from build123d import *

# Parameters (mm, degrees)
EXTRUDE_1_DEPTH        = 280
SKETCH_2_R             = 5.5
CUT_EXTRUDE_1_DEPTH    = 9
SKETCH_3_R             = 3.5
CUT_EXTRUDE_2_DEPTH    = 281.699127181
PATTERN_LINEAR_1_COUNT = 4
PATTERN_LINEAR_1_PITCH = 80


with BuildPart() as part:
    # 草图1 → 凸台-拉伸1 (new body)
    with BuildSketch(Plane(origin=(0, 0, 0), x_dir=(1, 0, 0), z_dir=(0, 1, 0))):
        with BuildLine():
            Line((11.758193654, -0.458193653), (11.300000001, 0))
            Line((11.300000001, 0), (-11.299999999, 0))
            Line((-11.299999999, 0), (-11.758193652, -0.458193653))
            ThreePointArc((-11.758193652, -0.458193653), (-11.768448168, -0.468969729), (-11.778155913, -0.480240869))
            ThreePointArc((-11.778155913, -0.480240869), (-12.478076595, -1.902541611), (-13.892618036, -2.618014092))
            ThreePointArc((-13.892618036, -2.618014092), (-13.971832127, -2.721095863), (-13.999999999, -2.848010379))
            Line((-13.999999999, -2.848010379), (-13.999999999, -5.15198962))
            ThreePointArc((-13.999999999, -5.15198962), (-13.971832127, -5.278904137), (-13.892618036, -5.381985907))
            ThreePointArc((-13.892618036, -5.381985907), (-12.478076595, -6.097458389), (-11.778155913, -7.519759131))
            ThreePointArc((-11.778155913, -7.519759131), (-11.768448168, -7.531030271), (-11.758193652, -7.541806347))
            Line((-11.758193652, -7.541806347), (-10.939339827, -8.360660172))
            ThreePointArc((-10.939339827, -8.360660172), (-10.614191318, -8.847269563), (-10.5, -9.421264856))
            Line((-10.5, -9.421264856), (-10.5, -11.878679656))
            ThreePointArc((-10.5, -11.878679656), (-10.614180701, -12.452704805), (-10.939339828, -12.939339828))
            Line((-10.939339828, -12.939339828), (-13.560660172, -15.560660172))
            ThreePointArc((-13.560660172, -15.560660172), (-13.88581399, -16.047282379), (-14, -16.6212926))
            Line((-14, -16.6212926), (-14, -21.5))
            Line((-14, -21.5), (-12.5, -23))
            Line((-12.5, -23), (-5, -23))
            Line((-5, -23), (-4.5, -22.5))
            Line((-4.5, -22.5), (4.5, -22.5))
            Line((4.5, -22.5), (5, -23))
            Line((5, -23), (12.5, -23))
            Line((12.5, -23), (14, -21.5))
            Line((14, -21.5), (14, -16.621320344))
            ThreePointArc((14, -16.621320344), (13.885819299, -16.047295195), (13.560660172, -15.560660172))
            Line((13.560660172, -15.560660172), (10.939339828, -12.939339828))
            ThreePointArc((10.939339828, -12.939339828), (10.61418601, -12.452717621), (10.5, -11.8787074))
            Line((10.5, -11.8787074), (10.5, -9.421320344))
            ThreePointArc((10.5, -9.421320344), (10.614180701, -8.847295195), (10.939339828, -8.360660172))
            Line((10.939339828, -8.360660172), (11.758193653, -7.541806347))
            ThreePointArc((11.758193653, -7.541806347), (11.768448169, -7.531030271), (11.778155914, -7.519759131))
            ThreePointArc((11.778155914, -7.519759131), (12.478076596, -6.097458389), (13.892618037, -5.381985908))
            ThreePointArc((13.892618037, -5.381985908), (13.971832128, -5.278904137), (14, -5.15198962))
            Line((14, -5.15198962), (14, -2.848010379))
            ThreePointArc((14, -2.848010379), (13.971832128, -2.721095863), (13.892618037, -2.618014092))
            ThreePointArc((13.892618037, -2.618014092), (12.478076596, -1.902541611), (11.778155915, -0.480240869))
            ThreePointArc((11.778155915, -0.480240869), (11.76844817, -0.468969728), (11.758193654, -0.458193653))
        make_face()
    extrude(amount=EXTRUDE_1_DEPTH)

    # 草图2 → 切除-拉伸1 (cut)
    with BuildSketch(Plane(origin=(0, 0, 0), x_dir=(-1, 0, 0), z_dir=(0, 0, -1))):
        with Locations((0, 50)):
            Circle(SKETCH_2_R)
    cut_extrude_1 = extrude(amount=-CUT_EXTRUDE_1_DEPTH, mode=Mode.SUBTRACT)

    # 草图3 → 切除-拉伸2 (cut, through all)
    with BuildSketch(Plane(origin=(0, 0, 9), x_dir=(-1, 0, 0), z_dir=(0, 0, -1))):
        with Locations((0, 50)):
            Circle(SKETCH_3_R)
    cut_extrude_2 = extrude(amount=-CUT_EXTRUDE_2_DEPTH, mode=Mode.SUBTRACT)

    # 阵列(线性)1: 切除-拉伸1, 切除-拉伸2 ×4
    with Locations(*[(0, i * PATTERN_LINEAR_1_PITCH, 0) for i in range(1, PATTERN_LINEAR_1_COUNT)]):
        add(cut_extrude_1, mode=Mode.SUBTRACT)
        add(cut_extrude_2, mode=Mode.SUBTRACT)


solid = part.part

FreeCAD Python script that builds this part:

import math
import FreeCAD as App
import Part
import Sketcher
from FreeCAD import Vector
Q = App.Units.Quantity

doc = App.newDocument("Part")
params = doc.addObject("Spreadsheet::Sheet", "Params")
for row, (alias, value) in enumerate([
    ("sketch1_radius", "0.3 mm"),
    ("sketch1_radius2", "2.5 mm"),
    ("sketch1_radius3", "1.5 mm"),
    ("sketch1_width", "9 mm"),
    ("sketch1_width2", "22.6 mm"),
    ("pad1_length", "280 mm"),
    ("sketch2_diameter", "11 mm"),
    ("pocket1_length", "9 mm"),
    ("sketch3_diameter", "7 mm"),
    ("linearpattern_pitch", "80 mm"),
], start=1):
    params.set(f"A{row}", alias)
    params.set(f"B{row}", "=" + value)
    params.setAlias(f"B{row}", alias)

body = doc.addObject("PartDesign::Body", "Body")

# Sketch on XZ plane
sketch1 = body.newObject("Sketcher::SketchObject", "Sketch")
sketch1.AttachmentSupport = (doc.getObject("XZ_Plane"), [""])
sketch1.MapMode = "FlatFace"
sketch1.addGeometry([
    Part.LineSegment(Vector(11.758, 0.458, 0), Vector(11.3, 0, 0)),  # 0
    Part.LineSegment(Vector(11.3, 0, 0), Vector(-11.3, 0, 0)),  # 1
    Part.LineSegment(Vector(-11.3, 0, 0), Vector(-11.758, 0.458, 0)),  # 2
    Part.ArcOfCircle(Part.Circle(Vector(-11.546, 0.67, 0), Vector(0, 0, 1), 0.3), math.radians(-140.68), math.radians(-135)),  # 3
    Part.ArcOfCircle(Part.Circle(Vector(-14.256, 0.144, 0), Vector(0, 0, 1), 2.5), math.radians(8), math.radians(82)),  # 4
    Part.ArcOfCircle(Part.Circle(Vector(-13.7, 2.848, 0), Vector(0, 0, 1), 0.3), math.radians(180), math.radians(230)),  # 5
    Part.LineSegment(Vector(-14, 2.848, 0), Vector(-14, 5.152, 0)),  # 6
    Part.ArcOfCircle(Part.Circle(Vector(-13.7, 5.152, 0), Vector(0, 0, 1), 0.3), math.radians(130), math.radians(180)),  # 7
    Part.ArcOfCircle(Part.Circle(Vector(-14.256, 7.856, 0), Vector(0, 0, 1), 2.5), math.radians(-82), math.radians(-8)),  # 8
    Part.ArcOfCircle(Part.Circle(Vector(-11.546, 7.33, 0), Vector(0, 0, 1), 0.3), math.radians(135), math.radians(140.68)),  # 9
    Part.LineSegment(Vector(-11.758, 7.542, 0), Vector(-10.939, 8.361, 0)),  # 10
    Part.ArcOfCircle(Part.Circle(Vector(-12, 9.421, 0), Vector(0, 0, 1), 1.5), math.radians(-45), math.radians(0)),  # 11
    Part.LineSegment(Vector(-10.5, 9.421, 0), Vector(-10.5, 11.879, 0)),  # 12
    Part.ArcOfCircle(Part.Circle(Vector(-12, 11.879, 0), Vector(0, 0, 1), 1.5), math.radians(0), math.radians(45)),  # 13
    Part.LineSegment(Vector(-10.939, 12.939, 0), Vector(-13.561, 15.561, 0)),  # 14
    Part.ArcOfCircle(Part.Circle(Vector(-12.5, 16.621, 0), Vector(0, 0, 1), 1.5), math.radians(-180), math.radians(-135)),  # 15
    Part.LineSegment(Vector(-14, 16.621, 0), Vector(-14, 21.5, 0)),  # 16
    Part.LineSegment(Vector(-14, 21.5, 0), Vector(-12.5, 23, 0)),  # 17
    Part.LineSegment(Vector(-12.5, 23, 0), Vector(-5, 23, 0)),  # 18
    Part.LineSegment(Vector(-5, 23, 0), Vector(-4.5, 22.5, 0)),  # 19
    Part.LineSegment(Vector(-4.5, 22.5, 0), Vector(4.5, 22.5, 0)),  # 20
    Part.LineSegment(Vector(4.5, 22.5, 0), Vector(5, 23, 0)),  # 21
    Part.LineSegment(Vector(5, 23, 0), Vector(12.5, 23, 0)),  # 22
    Part.LineSegment(Vector(12.5, 23, 0), Vector(14, 21.5, 0)),  # 23
    Part.LineSegment(Vector(14, 21.5, 0), Vector(14, 16.621, 0)),  # 24
    Part.ArcOfCircle(Part.Circle(Vector(12.5, 16.621, 0), Vector(0, 0, 1), 1.5), math.radians(-45), math.radians(0)),  # 25
    Part.LineSegment(Vector(13.561, 15.561, 0), Vector(10.939, 12.939, 0)),  # 26
    Part.ArcOfCircle(Part.Circle(Vector(12, 11.879, 0), Vector(0, 0, 1), 1.5), math.radians(135), math.radians(180)),  # 27
    Part.LineSegment(Vector(10.5, 11.879, 0), Vector(10.5, 9.421, 0)),  # 28
    Part.ArcOfCircle(Part.Circle(Vector(12, 9.421, 0), Vector(0, 0, 1), 1.5), math.radians(180), math.radians(225)),  # 29
    Part.LineSegment(Vector(10.939, 8.361, 0), Vector(11.758, 7.542, 0)),  # 30
    Part.ArcOfCircle(Part.Circle(Vector(11.546, 7.33, 0), Vector(0, 0, 1), 0.3), math.radians(39.32), math.radians(45)),  # 31
    Part.ArcOfCircle(Part.Circle(Vector(14.256, 7.856, 0), Vector(0, 0, 1), 2.5), math.radians(-172), math.radians(-98)),  # 32
    Part.ArcOfCircle(Part.Circle(Vector(13.7, 5.152, 0), Vector(0, 0, 1), 0.3), math.radians(0), math.radians(50)),  # 33
    Part.LineSegment(Vector(14, 5.152, 0), Vector(14, 2.848, 0)),  # 34
    Part.ArcOfCircle(Part.Circle(Vector(13.7, 2.848, 0), Vector(0, 0, 1), 0.3), math.radians(-50), math.radians(0)),  # 35
    Part.ArcOfCircle(Part.Circle(Vector(14.256, 0.144, 0), Vector(0, 0, 1), 2.5), math.radians(98), math.radians(172)),  # 36
    Part.ArcOfCircle(Part.Circle(Vector(11.546, 0.67, 0), Vector(0, 0, 1), 0.3), math.radians(-45), math.radians(-39.32)),  # 37
], False)
sketch1.addConstraint([
    Sketcher.Constraint("Coincident", 0, 2, 1, 1),
    Sketcher.Constraint("Coincident", 1, 2, 2, 1),
    Sketcher.Constraint("Tangent", 2, 2, 3, 2),
    Sketcher.Constraint("Coincident", 3, 1, 4, 1),
    Sketcher.Constraint("Coincident", 4, 2, 5, 2),
    Sketcher.Constraint("Tangent", 5, 1, 6, 1),
    Sketcher.Constraint("Tangent", 6, 2, 7, 2),
    Sketcher.Constraint("Coincident", 7, 1, 8, 1),
    Sketcher.Constraint("Coincident", 8, 2, 9, 2),
    Sketcher.Constraint("Tangent", 9, 1, 10, 1),
    Sketcher.Constraint("Tangent", 10, 2, 11, 1),
    Sketcher.Constraint("Coincident", 11, 2, 12, 1),
    Sketcher.Constraint("Tangent", 12, 2, 13, 1),
    Sketcher.Constraint("Tangent", 13, 2, 14, 1),
    Sketcher.Constraint("Tangent", 14, 2, 15, 2),
    Sketcher.Constraint("Coincident", 15, 1, 16, 1),
    Sketcher.Constraint("Coincident", 16, 2, 17, 1),
    Sketcher.Constraint("Coincident", 17, 2, 18, 1),
    Sketcher.Constraint("Coincident", 18, 2, 19, 1),
    Sketcher.Constraint("Coincident", 19, 2, 20, 1),
    Sketcher.Constraint("Coincident", 20, 2, 21, 1),
    Sketcher.Constraint("Coincident", 21, 2, 22, 1),
    Sketcher.Constraint("Coincident", 22, 2, 23, 1),
    Sketcher.Constraint("Coincident", 23, 2, 24, 1),
    Sketcher.Constraint("Tangent", 24, 2, 25, 2),
    Sketcher.Constraint("Tangent", 25, 1, 26, 1),
    Sketcher.Constraint("Tangent", 26, 2, 27, 1),
    Sketcher.Constraint("Coincident", 27, 2, 28, 1),
    Sketcher.Constraint("Tangent", 28, 2, 29, 1),
    Sketcher.Constraint("Tangent", 29, 2, 30, 1),
    Sketcher.Constraint("Tangent", 30, 2, 31, 2),
    Sketcher.Constraint("Coincident", 31, 1, 32, 1),
    Sketcher.Constraint("Coincident", 32, 2, 33, 2),
    Sketcher.Constraint("Tangent", 33, 1, 34, 1),
    Sketcher.Constraint("Tangent", 34, 2, 35, 2),
    Sketcher.Constraint("Coincident", 35, 1, 36, 1),
    Sketcher.Constraint("Coincident", 36, 2, 37, 2),
    Sketcher.Constraint("Tangent", 37, 1, 0, 1),
    Sketcher.Constraint("Horizontal", 1),
    Sketcher.Constraint("Vertical", 6),
    Sketcher.Constraint("Vertical", 12),
    Sketcher.Constraint("Vertical", 16),
    Sketcher.Constraint("Horizontal", 18),
    Sketcher.Constraint("Horizontal", 20),
    Sketcher.Constraint("Horizontal", 22),
    Sketcher.Constraint("Vertical", 24),
    Sketcher.Constraint("Vertical", 28),
    Sketcher.Constraint("Vertical", 34),
    Sketcher.Constraint("Equal", 3, 5),
    Sketcher.Constraint("Equal", 5, 7),
    Sketcher.Constraint("Equal", 4, 8),
    Sketcher.Constraint("Equal", 7, 9),
    Sketcher.Constraint("Equal", 11, 13),
    Sketcher.Constraint("Equal", 13, 15),
    Sketcher.Constraint("Equal", 15, 25),
    Sketcher.Constraint("Equal", 25, 27),
    Sketcher.Constraint("Equal", 27, 29),
    Sketcher.Constraint("Equal", 9, 31),
    Sketcher.Constraint("Equal", 8, 32),
    Sketcher.Constraint("Equal", 31, 33),
    Sketcher.Constraint("Equal", 33, 35),
    Sketcher.Constraint("Equal", 32, 36),
    Sketcher.Constraint("Equal", 35, 37),
    Sketcher.Constraint("Symmetric", 0, 2, 1, 2, -1, 1),
    Sketcher.Constraint("Symmetric", 15, 3, 25, 3, -2),
    Sketcher.Constraint("Symmetric", 13, 3, 27, 3, -2),
    Sketcher.Constraint("Symmetric", 9, 3, 31, 3, -2),
    Sketcher.Constraint("Symmetric", 8, 3, 32, 3, -2),
    Sketcher.Constraint("Symmetric", 7, 3, 33, 3, -2),
    Sketcher.Constraint("Symmetric", 4, 3, 36, 3, -2),
    Sketcher.Constraint("Symmetric", 3, 3, 37, 3, -2),
    Sketcher.Constraint("Symmetric", 18, 2, 21, 2, -2),
    Sketcher.Constraint("Perpendicular", 0, 2),
    Sketcher.Constraint("Perpendicular", 2, 10),
    Sketcher.Constraint("Perpendicular", 10, 14),
    Sketcher.Constraint("Perpendicular", 14, 17),
    Sketcher.Constraint("Perpendicular", 17, 19),
    Sketcher.Constraint("Perpendicular", 19, 21),
    Sketcher.Constraint("Perpendicular", 21, 23),
    Sketcher.Constraint("Perpendicular", 26, 30),
    Sketcher.Constraint("Horizontal", 5, 3, 35, 3),
    Sketcher.Constraint("Horizontal", 16, 2, 23, 2),
    Sketcher.Constraint("Vertical", 4, 3, 8, 3),
    Sketcher.Constraint("Vertical", 3, 3, 9, 3),
    Sketcher.Constraint("Vertical", 4, 2, 7, 1),
    Sketcher.Constraint("Vertical", 3, 1, 8, 2),
    Sketcher.Constraint("Vertical", 6, 2, 15, 1),
    Sketcher.Constraint("Vertical", 15, 3, 17, 2),
    Sketcher.Constraint("Radius", 3, Q("0.3 mm")),
    Sketcher.Constraint("Radius", 4, Q("2.5 mm")),
    Sketcher.Constraint("Radius", 11, Q("1.5 mm")),
    Sketcher.Constraint("DistanceX", 20, 1, 20, 2, Q("9 mm")),
    Sketcher.Constraint("DistanceX", 1, 2, 1, 1, Q("22.6 mm")),
    Sketcher.Constraint("DistanceX", 18, 1, 18, 2, Q("7.5 mm")),
    Sketcher.Constraint("DistanceX", 11, 3, -1, 1, Q("12 mm")),
    Sketcher.Constraint("DistanceX", 5, 1, -1, 1, Q("14 mm")),
    Sketcher.Constraint("DistanceY", -1, 1, 17, 2, Q("23 mm")),
    Sketcher.Constraint("DistanceY", 11, 3, 15, 3, Q("7.2 mm")),
    Sketcher.Constraint("DistanceY", 6, 1, 6, 2, Q("2.303979 mm")),
    Sketcher.Constraint("DistanceY", 24, 2, 24, 1, Q("4.87868 mm")),
    Sketcher.Constraint("DistanceY", 4, 3, 2, 2, Q("0.313702 mm")),
    Sketcher.Constraint("DistanceY", 8, 2, 10, 2, Q("0.840901 mm")),
    Sketcher.Constraint("DistanceY", 12, 1, 12, 2, Q("2.457415 mm")),
    Sketcher.Constraint("DistanceY", 16, 1, 16, 2, Q("4.878707 mm")),
    Sketcher.Constraint("DistanceY", 28, 2, 28, 1, Q("2.457387 mm")),
    Sketcher.Constraint("DistanceX", 3, 3, -1, 1, Q("11.546061 mm")),
])
sketch1.setExpression("Constraints[88]", "Params.sketch1_radius")
sketch1.setExpression("Constraints[89]", "Params.sketch1_radius2")
sketch1.setExpression("Constraints[90]", "Params.sketch1_radius3")
sketch1.setExpression("Constraints[91]", "Params.sketch1_width")
sketch1.setExpression("Constraints[92]", "Params.sketch1_width2")
pad1 = body.newObject("PartDesign::Pad", "Pad")
pad1.Profile = sketch1
pad1.setExpression("Length", "Params.pad1_length")
pad1.Reversed = True

# Sketch on XY plane
sketch2 = body.newObject("Sketcher::SketchObject", "Sketch001")
sketch2.AttachmentSupport = (doc.getObject("XY_Plane"), [""])
sketch2.MapMode = "FlatFace"
sketch2.addGeometry(Part.Circle(Vector(0, 50, 0), Vector(0, 0, 1), 6), False)
sketch2.addConstraint([
    Sketcher.Constraint("PointOnObject", 0, 3, -2),
    Sketcher.Constraint("Diameter", 0, Q("11 mm")),
    Sketcher.Constraint("DistanceY", -1, 1, 0, 3, Q("50 mm")),
])
sketch2.setExpression("Constraints[1]", "Params.sketch2_diameter")
pocket1 = body.newObject("PartDesign::Pocket", "Pocket")
pocket1.Profile = sketch2
pocket1.setExpression("Length", "Params.pocket1_length")
pocket1.Reversed = True

# Sketch on XY plane
sketch3 = body.newObject("Sketcher::SketchObject", "Sketch002")
sketch3.AttachmentSupport = (doc.getObject("XY_Plane"), [""])
sketch3.MapMode = "FlatFace"
sketch3.AttachmentOffset = App.Placement(Vector(0, 0, 9), App.Rotation())
sketch3.addGeometry(Part.Circle(Vector(0, 50, 0), Vector(0, 0, 1), 3.5), False)
sketch3.addConstraint([
    Sketcher.Constraint("PointOnObject", 0, 3, -2),
    Sketcher.Constraint("Diameter", 0, Q("7 mm")),
    Sketcher.Constraint("DistanceY", -1, 1, 0, 3, Q("50 mm")),
])
sketch3.setExpression("Constraints[1]", "Params.sketch3_diameter")
pocket2 = body.newObject("PartDesign::Pocket", "Pocket001")
pocket2.Profile = sketch3
pocket2.Type = "ThroughAll"
pocket2.Reversed = True
doc.recompute()

linearpattern = body.newObject("PartDesign::LinearPattern", "LinearPattern")
linearpattern.Originals = [pocket1, pocket2]
linearpattern.Direction = (doc.getObject("Y_Axis"), [""])
linearpattern.Mode = "offset"
linearpattern.setExpression("Offset", "Params.linearpattern_pitch")
linearpattern.Occurrences = 4
body.Tip = linearpattern

doc.recompute()
